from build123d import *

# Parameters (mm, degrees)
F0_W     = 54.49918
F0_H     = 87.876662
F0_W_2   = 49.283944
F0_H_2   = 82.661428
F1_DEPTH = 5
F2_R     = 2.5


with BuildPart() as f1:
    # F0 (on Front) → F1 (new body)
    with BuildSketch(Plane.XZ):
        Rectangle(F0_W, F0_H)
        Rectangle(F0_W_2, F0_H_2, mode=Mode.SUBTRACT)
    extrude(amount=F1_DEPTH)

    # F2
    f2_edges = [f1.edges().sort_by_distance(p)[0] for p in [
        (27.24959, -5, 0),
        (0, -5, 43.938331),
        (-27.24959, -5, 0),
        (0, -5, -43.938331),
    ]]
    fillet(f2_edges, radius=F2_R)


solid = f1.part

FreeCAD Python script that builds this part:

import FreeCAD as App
import Part
import Sketcher
from FreeCAD import Vector


def edges_at(feature, points):
    """Names of the edges that pass closest to the given points."""
    edges = feature.Shape.Edges
    near = lambda p: min(range(len(edges)), key=lambda i: edges[i].distToShape(Part.Vertex(*p))[0])
    return sorted({f"Edge{near(p) + 1}" for p in points})

doc = App.newDocument("Part")
body = doc.addObject("PartDesign::Body", "Body")

# Sketch on XZ plane
sketch1 = body.newObject("Sketcher::SketchObject", "Sketch")
sketch1.AttachmentSupport = (doc.getObject("XZ_Plane"), [""])
sketch1.MapMode = "FlatFace"
sketch1.addGeometry([
    Part.LineSegment(Vector(-27.24959, 43.938331, 0), Vector(-27.24959, -43.938331, 0)),  # 0
    Part.LineSegment(Vector(-27.24959, -43.938331, 0), Vector(27.24959, -43.938331, 0)),  # 1
    Part.LineSegment(Vector(27.24959, -43.938331, 0), Vector(27.24959, 43.938331, 0)),  # 2
    Part.LineSegment(Vector(27.24959, 43.938331, 0), Vector(-27.24959, 43.938331, 0)),  # 3
    Part.LineSegment(Vector(24.641972, -41.330714, 0), Vector(-24.641972, -41.330714, 0)),  # 4
    Part.LineSegment(Vector(-24.641972, -41.330714, 0), Vector(-24.641972, 41.330714, 0)),  # 5
    Part.LineSegment(Vector(-24.641972, 41.330714, 0), Vector(24.641972, 41.330714, 0)),  # 6
    Part.LineSegment(Vector(24.641972, 41.330714, 0), Vector(24.641972, -41.330714, 0)),  # 7
], False)
sketch1.addConstraint([
    Sketcher.Constraint("Coincident", 0, 2, 1, 1),
    Sketcher.Constraint("Coincident", 1, 2, 2, 1),
    Sketcher.Constraint("Coincident", 2, 2, 3, 1),
    Sketcher.Constraint("Coincident", 3, 2, 0, 1),
    Sketcher.Constraint("Coincident", 4, 2, 5, 1),
    Sketcher.Constraint("Coincident", 5, 2, 6, 1),
    Sketcher.Constraint("Coincident", 6, 2, 7, 1),
    Sketcher.Constraint("Coincident", 7, 2, 4, 1),
    Sketcher.Constraint("Vertical", 0),
    Sketcher.Constraint("Horizontal", 1),
    Sketcher.Constraint("Vertical", 2),
    Sketcher.Constraint("Horizontal", 3),
    Sketcher.Constraint("Horizontal", 4),
    Sketcher.Constraint("Vertical", 5),
    Sketcher.Constraint("Horizontal", 6),
    Sketcher.Constraint("Vertical", 7),
    Sketcher.Constraint("Symmetric", 0, 2, 2, 2, -1, 1),
    Sketcher.Constraint("Symmetric", 4, 2, 6, 2, -1, 1),
    Sketcher.Constraint("DistanceX", 1, 1, 1, 2, 54.49918),
    Sketcher.Constraint("DistanceY", 0, 2, 0, 1, 87.876662),
    Sketcher.Constraint("DistanceY", 5, 1, 5, 2, 82.661428),
    Sketcher.Constraint("DistanceX", 4, 2, 4, 1, 49.283944),
])
pad1 = body.newObject("PartDesign::Pad", "Pad")
pad1.Profile = sketch1
pad1.Length = 5
doc.recompute()

fillet = body.newObject("PartDesign::Fillet", "Fillet")
fillet.Base = (pad1, edges_at(pad1, [
    (27.25, -5, 0),
    (0, -5, 43.938),
    (-27.25, -5, 0),
    (0, -5, -43.938),
]))
fillet.Radius = 2.5

doc.recompute()
